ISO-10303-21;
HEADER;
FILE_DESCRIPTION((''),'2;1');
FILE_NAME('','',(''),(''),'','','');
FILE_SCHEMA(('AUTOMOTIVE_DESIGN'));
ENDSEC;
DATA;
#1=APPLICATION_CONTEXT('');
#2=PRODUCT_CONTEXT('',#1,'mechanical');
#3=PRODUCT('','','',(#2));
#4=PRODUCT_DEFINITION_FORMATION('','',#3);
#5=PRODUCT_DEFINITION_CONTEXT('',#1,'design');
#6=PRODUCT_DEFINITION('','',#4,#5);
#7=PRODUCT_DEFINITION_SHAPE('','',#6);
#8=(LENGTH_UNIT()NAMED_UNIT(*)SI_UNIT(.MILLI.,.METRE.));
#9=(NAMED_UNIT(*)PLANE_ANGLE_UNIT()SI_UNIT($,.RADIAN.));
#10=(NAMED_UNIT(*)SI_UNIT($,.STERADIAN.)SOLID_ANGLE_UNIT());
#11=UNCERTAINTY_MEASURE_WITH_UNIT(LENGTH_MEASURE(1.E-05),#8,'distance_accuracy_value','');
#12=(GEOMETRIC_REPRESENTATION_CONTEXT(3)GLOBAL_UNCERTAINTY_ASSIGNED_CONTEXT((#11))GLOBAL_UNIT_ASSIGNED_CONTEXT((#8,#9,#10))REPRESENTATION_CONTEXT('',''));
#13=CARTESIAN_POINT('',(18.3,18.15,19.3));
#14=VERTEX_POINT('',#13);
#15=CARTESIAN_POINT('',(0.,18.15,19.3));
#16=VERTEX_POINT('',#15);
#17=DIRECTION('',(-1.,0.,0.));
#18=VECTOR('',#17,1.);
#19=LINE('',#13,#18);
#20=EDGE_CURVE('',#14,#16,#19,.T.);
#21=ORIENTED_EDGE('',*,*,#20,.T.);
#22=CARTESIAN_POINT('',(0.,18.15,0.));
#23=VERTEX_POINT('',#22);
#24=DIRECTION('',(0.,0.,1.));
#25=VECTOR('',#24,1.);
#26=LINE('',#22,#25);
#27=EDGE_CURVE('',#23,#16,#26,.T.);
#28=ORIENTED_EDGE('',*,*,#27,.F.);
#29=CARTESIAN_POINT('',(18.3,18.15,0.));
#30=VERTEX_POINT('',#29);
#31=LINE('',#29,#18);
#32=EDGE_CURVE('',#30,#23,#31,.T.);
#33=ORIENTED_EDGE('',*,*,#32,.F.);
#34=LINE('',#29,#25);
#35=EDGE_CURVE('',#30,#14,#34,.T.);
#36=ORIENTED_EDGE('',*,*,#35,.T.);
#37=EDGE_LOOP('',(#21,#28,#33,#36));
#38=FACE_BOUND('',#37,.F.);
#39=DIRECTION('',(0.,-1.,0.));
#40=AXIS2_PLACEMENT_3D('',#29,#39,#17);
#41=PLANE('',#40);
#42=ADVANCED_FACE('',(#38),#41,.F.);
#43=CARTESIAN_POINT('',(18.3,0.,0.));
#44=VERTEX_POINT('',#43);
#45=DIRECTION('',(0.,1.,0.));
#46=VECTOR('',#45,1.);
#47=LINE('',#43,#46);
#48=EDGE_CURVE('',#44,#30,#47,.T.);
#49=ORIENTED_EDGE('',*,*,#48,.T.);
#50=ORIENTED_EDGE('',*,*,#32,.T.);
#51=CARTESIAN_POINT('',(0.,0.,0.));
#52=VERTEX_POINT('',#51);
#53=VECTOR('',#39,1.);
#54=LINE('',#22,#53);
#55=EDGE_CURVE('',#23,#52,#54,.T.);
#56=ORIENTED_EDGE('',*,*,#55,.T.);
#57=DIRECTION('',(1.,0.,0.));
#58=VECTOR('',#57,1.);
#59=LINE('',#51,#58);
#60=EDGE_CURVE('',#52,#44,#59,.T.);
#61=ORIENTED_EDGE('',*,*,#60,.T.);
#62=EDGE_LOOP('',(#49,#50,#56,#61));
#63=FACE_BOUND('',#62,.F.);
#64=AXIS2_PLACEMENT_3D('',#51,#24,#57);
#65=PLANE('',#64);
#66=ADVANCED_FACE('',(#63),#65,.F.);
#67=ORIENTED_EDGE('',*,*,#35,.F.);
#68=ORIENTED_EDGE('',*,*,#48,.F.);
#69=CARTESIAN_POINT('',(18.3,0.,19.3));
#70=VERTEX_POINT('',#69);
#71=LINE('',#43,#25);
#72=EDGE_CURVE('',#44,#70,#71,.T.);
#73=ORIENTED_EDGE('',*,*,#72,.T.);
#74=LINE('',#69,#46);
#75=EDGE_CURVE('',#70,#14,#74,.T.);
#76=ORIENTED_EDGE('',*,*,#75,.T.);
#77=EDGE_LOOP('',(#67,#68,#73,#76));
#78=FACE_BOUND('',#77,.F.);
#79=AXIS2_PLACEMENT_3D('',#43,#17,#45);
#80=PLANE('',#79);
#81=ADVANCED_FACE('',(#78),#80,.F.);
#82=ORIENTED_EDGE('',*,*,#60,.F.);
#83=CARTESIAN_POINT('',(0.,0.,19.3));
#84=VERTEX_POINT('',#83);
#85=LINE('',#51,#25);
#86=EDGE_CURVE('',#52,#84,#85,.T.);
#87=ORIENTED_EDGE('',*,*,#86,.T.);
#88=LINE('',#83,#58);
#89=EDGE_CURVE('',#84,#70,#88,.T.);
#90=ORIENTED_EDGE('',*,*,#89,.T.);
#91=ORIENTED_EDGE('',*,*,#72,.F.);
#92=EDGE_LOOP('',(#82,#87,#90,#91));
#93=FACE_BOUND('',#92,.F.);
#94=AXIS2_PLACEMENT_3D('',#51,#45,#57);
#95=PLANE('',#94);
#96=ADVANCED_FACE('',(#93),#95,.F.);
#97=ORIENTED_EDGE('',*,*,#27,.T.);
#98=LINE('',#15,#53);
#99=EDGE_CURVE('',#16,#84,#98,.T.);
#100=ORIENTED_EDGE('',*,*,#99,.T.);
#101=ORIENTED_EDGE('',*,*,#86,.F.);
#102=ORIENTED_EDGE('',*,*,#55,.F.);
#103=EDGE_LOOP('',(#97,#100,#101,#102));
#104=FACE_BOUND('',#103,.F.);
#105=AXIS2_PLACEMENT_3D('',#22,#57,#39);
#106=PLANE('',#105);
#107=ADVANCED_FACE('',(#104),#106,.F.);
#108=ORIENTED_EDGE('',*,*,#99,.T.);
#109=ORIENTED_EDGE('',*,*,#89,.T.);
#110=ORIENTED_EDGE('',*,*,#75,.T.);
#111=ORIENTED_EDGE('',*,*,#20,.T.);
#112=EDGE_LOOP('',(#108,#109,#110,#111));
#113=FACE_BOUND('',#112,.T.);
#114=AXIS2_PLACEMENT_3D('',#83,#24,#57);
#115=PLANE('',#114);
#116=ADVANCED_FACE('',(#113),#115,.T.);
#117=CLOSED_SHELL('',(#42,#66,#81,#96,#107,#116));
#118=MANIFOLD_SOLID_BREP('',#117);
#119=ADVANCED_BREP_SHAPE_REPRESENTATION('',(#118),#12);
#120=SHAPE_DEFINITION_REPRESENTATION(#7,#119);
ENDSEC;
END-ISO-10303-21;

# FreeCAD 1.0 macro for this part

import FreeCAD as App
import Part
import Sketcher
Q = App.Units.Quantity

doc = App.newDocument("Part")
body = doc.addObject("PartDesign::Body", "Body")

sketch1 = body.newObject("Sketcher::SketchObject", "Sketch")
sketch1.AttachmentSupport = (doc.getObject("XY_Plane"), [""])
sketch1.MapMode = "FlatFace"
sketch1.addGeometry([
    Part.LineSegment(App.Vector(0, 18, 0), App.Vector(0, 0, 0)),
    Part.LineSegment(App.Vector(0, 0, 0), App.Vector(18, 0, 0)),
    Part.LineSegment(App.Vector(18, 0, 0), App.Vector(18, 18, 0)),
    Part.LineSegment(App.Vector(18, 18, 0), App.Vector(0, 18, 0)),
], False)
sketch1.addConstraint([
    Sketcher.Constraint("Coincident", 0, 2, 1, 1),
    Sketcher.Constraint("Coincident", 1, 2, 2, 1),
    Sketcher.Constraint("Coincident", 2, 2, 3, 1),
    Sketcher.Constraint("Coincident", 3, 2, 0, 1),
    Sketcher.Constraint("Vertical", 0),
    Sketcher.Constraint("Horizontal", 1),
    Sketcher.Constraint("Vertical", 2),
    Sketcher.Constraint("Horizontal", 3),
    Sketcher.Constraint("Coincident", 0, 2, -1, 1),
    Sketcher.Constraint("DistanceX", 1, 1, 1, 2, Q("18.3 mm")),
    Sketcher.Constraint("DistanceY", 0, 2, 0, 1, Q("18.15 mm")),
])
pad1 = body.newObject("PartDesign::Pad", "Pad")
pad1.Profile = sketch1
pad1.Length = 19.3

doc.recompute()
